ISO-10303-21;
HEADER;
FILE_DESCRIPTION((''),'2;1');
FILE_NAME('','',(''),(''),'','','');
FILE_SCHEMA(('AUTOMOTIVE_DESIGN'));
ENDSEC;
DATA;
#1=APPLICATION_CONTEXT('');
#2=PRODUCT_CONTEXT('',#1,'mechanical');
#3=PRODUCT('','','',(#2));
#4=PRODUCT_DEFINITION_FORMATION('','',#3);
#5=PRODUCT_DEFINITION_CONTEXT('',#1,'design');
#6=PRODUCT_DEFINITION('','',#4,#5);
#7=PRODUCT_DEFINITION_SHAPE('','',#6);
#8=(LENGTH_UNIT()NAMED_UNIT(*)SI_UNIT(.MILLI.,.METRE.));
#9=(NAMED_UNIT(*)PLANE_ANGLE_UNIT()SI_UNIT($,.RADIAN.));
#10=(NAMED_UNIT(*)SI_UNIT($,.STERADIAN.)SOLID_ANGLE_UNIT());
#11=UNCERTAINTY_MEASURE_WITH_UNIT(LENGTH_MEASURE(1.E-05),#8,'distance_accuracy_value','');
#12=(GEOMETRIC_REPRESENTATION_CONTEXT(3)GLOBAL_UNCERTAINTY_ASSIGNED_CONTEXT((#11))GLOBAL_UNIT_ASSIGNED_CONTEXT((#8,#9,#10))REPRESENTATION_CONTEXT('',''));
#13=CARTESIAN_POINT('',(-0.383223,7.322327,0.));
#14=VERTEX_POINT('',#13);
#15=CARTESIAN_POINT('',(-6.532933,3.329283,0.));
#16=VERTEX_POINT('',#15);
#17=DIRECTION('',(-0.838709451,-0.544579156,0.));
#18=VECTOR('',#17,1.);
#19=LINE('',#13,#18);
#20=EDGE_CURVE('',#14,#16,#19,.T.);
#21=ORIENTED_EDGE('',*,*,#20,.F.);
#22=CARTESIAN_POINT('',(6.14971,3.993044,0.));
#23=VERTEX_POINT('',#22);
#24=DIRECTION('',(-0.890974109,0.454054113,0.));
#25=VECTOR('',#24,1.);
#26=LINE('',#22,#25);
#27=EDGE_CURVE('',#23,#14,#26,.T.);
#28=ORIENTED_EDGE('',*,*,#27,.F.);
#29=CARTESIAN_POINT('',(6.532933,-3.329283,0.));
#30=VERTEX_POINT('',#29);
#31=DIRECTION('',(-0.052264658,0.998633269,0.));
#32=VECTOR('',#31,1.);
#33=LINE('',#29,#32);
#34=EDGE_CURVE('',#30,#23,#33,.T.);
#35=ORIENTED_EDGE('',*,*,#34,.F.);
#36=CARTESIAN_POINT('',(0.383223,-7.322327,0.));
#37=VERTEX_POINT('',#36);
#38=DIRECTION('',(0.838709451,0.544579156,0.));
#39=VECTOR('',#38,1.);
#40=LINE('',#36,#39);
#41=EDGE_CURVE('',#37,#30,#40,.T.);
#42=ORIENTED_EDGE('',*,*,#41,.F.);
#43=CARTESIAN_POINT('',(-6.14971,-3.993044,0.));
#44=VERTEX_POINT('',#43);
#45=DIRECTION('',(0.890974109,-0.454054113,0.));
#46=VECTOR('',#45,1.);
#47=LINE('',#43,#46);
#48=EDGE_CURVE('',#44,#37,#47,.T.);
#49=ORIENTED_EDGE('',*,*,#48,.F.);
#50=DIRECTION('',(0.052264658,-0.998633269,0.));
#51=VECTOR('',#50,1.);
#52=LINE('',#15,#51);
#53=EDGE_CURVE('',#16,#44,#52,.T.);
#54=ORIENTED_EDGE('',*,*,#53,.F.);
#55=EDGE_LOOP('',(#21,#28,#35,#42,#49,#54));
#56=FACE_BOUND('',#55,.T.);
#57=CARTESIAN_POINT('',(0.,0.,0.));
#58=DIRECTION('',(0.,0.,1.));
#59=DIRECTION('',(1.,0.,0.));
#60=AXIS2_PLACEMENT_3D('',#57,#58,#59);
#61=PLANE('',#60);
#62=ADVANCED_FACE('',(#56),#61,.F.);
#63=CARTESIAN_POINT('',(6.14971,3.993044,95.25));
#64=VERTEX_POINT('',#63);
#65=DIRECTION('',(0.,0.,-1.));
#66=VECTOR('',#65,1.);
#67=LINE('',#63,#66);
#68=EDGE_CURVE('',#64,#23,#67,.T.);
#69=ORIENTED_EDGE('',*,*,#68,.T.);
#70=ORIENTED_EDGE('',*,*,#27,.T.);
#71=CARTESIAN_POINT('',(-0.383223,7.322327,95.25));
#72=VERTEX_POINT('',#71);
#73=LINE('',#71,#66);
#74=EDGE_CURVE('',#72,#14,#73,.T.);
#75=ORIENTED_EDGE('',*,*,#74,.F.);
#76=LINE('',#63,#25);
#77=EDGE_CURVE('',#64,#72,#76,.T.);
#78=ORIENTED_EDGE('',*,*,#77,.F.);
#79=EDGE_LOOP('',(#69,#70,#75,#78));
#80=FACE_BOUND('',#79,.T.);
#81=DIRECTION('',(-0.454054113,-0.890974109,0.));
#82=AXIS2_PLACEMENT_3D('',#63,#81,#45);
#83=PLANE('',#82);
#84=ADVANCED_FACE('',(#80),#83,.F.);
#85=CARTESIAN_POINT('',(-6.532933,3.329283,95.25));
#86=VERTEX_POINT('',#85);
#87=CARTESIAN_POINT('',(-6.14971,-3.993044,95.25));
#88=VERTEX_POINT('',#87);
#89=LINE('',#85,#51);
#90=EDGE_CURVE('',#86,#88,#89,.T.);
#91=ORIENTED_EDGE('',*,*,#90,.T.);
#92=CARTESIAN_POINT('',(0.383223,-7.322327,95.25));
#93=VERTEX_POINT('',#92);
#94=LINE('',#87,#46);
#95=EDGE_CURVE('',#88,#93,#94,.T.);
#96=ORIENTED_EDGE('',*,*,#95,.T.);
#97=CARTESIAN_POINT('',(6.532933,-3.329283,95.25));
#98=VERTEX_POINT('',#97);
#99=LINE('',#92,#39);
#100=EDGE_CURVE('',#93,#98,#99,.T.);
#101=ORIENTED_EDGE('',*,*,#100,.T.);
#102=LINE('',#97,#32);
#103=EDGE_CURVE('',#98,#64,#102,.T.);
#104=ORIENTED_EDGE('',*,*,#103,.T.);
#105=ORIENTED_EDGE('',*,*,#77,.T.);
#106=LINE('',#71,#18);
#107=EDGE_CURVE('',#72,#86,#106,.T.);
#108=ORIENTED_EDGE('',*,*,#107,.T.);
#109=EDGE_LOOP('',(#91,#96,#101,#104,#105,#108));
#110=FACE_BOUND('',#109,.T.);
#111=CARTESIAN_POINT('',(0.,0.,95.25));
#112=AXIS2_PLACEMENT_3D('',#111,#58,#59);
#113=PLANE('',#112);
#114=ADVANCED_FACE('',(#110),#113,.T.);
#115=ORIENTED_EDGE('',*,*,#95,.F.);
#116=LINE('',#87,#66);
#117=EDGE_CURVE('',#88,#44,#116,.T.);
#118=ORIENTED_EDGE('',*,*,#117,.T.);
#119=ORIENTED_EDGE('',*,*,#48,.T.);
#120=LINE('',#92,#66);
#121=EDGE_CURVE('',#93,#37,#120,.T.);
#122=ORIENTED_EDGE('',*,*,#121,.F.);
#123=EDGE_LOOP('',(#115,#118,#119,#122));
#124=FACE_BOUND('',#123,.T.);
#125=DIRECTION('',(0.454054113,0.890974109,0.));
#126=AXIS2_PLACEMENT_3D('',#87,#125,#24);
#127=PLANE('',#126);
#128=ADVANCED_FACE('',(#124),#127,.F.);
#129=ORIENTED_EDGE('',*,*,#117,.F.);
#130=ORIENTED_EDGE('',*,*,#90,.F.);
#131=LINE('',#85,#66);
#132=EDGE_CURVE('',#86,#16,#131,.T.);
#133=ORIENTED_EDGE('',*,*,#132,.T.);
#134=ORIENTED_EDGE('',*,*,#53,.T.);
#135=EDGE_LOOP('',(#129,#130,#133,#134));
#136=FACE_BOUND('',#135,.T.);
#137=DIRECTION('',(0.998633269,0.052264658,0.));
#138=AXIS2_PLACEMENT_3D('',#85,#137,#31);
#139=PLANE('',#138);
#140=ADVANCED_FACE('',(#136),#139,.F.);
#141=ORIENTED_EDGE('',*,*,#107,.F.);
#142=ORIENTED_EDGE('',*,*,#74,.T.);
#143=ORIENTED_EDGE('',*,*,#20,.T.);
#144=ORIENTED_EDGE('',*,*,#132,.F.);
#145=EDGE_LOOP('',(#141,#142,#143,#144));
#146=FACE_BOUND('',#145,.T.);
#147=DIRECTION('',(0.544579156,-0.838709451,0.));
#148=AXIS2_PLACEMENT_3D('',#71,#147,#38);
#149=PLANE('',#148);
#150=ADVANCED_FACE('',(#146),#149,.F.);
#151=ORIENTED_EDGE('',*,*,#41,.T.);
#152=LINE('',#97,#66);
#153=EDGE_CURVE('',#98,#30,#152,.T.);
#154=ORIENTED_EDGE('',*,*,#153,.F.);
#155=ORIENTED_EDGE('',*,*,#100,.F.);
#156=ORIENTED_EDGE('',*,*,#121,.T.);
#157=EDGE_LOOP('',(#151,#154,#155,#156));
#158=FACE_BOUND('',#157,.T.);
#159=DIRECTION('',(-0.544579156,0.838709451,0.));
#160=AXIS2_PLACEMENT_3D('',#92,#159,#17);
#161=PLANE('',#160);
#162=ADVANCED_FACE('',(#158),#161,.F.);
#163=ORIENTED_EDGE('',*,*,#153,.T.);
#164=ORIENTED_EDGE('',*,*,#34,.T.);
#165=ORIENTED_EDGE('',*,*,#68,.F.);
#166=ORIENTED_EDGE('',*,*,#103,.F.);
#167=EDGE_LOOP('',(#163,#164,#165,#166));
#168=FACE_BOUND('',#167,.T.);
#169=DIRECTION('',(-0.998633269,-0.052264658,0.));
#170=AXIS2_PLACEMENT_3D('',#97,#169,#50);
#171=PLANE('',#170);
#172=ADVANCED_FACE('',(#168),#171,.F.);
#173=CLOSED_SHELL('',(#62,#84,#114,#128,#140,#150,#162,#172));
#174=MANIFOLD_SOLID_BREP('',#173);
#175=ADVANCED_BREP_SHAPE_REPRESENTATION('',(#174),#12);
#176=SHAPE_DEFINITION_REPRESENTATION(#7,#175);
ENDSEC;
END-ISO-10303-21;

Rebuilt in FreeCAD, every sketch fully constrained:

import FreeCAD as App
import Part
import Sketcher

V = App.Vector
Q = App.Units.Quantity

doc = App.newDocument("Part")
body = doc.addObject("PartDesign::Body", "Body")

# Sketch on XY plane
sketch1 = body.newObject("Sketcher::SketchObject", "Sketch")
sketch1.AttachmentSupport = (doc.getObject("XY_Plane"), [""])
sketch1.MapMode = "FlatFace"
sketch1.addGeometry(Part.LineSegment(V(-6.532933, 3.329283, 0), V(-6.14971, -3.993044, 0)), False)
sketch1.addGeometry(Part.LineSegment(V(-6.14971, -3.993044, 0), V(0.383223, -7.322327, 0)), False)
sketch1.addGeometry(Part.LineSegment(V(0.383223, -7.322327, 0), V(6.532933, -3.329283, 0)), False)
sketch1.addGeometry(Part.LineSegment(V(6.532933, -3.329283, 0), V(6.14971, 3.993044, 0)), False)
sketch1.addGeometry(Part.LineSegment(V(6.14971, 3.993044, 0), V(-0.383223, 7.322327, 0)), False)
sketch1.addGeometry(Part.LineSegment(V(-0.383223, 7.322327, 0), V(-6.532933, 3.329283, 0)), False)
sketch1.addConstraint(Sketcher.Constraint("Coincident", 0, 2, 1, 1))
sketch1.addConstraint(Sketcher.Constraint("Coincident", 1, 2, 2, 1))
sketch1.addConstraint(Sketcher.Constraint("Coincident", 2, 2, 3, 1))
sketch1.addConstraint(Sketcher.Constraint("Coincident", 3, 2, 4, 1))
sketch1.addConstraint(Sketcher.Constraint("Coincident", 4, 2, 5, 1))
sketch1.addConstraint(Sketcher.Constraint("Coincident", 5, 2, 0, 1))
sketch1.addConstraint(Sketcher.Constraint("Symmetric", 0, 2, 3, 2, -1, 1))
sketch1.addConstraint(Sketcher.Constraint("Symmetric", 1, 2, 4, 2, -1, 1))
sketch1.addConstraint(Sketcher.Constraint("Symmetric", 2, 2, 5, 2, -1, 1))
sketch1.addConstraint(Sketcher.Constraint("Equal", 0, 1))
sketch1.addConstraint(Sketcher.Constraint("Equal", 1, 2))
sketch1.addConstraint(Sketcher.Constraint("Distance", 0, 7.332348))
sketch1.addConstraint(Sketcher.Constraint("DistanceX", 0, 2, -1, 1, 6.14971))
sketch1.addConstraint(Sketcher.Constraint("DistanceX", 1, 2, 2, 2, 6.14971))
sketch1.addConstraint(Sketcher.Constraint("DistanceY", 0, 2, 2, 2, 0.663761))
pad1 = body.newObject("PartDesign::Pad", "Pad")
pad1.Profile = sketch1
pad1.Length = Q("3.75 in")

doc.recompute()
